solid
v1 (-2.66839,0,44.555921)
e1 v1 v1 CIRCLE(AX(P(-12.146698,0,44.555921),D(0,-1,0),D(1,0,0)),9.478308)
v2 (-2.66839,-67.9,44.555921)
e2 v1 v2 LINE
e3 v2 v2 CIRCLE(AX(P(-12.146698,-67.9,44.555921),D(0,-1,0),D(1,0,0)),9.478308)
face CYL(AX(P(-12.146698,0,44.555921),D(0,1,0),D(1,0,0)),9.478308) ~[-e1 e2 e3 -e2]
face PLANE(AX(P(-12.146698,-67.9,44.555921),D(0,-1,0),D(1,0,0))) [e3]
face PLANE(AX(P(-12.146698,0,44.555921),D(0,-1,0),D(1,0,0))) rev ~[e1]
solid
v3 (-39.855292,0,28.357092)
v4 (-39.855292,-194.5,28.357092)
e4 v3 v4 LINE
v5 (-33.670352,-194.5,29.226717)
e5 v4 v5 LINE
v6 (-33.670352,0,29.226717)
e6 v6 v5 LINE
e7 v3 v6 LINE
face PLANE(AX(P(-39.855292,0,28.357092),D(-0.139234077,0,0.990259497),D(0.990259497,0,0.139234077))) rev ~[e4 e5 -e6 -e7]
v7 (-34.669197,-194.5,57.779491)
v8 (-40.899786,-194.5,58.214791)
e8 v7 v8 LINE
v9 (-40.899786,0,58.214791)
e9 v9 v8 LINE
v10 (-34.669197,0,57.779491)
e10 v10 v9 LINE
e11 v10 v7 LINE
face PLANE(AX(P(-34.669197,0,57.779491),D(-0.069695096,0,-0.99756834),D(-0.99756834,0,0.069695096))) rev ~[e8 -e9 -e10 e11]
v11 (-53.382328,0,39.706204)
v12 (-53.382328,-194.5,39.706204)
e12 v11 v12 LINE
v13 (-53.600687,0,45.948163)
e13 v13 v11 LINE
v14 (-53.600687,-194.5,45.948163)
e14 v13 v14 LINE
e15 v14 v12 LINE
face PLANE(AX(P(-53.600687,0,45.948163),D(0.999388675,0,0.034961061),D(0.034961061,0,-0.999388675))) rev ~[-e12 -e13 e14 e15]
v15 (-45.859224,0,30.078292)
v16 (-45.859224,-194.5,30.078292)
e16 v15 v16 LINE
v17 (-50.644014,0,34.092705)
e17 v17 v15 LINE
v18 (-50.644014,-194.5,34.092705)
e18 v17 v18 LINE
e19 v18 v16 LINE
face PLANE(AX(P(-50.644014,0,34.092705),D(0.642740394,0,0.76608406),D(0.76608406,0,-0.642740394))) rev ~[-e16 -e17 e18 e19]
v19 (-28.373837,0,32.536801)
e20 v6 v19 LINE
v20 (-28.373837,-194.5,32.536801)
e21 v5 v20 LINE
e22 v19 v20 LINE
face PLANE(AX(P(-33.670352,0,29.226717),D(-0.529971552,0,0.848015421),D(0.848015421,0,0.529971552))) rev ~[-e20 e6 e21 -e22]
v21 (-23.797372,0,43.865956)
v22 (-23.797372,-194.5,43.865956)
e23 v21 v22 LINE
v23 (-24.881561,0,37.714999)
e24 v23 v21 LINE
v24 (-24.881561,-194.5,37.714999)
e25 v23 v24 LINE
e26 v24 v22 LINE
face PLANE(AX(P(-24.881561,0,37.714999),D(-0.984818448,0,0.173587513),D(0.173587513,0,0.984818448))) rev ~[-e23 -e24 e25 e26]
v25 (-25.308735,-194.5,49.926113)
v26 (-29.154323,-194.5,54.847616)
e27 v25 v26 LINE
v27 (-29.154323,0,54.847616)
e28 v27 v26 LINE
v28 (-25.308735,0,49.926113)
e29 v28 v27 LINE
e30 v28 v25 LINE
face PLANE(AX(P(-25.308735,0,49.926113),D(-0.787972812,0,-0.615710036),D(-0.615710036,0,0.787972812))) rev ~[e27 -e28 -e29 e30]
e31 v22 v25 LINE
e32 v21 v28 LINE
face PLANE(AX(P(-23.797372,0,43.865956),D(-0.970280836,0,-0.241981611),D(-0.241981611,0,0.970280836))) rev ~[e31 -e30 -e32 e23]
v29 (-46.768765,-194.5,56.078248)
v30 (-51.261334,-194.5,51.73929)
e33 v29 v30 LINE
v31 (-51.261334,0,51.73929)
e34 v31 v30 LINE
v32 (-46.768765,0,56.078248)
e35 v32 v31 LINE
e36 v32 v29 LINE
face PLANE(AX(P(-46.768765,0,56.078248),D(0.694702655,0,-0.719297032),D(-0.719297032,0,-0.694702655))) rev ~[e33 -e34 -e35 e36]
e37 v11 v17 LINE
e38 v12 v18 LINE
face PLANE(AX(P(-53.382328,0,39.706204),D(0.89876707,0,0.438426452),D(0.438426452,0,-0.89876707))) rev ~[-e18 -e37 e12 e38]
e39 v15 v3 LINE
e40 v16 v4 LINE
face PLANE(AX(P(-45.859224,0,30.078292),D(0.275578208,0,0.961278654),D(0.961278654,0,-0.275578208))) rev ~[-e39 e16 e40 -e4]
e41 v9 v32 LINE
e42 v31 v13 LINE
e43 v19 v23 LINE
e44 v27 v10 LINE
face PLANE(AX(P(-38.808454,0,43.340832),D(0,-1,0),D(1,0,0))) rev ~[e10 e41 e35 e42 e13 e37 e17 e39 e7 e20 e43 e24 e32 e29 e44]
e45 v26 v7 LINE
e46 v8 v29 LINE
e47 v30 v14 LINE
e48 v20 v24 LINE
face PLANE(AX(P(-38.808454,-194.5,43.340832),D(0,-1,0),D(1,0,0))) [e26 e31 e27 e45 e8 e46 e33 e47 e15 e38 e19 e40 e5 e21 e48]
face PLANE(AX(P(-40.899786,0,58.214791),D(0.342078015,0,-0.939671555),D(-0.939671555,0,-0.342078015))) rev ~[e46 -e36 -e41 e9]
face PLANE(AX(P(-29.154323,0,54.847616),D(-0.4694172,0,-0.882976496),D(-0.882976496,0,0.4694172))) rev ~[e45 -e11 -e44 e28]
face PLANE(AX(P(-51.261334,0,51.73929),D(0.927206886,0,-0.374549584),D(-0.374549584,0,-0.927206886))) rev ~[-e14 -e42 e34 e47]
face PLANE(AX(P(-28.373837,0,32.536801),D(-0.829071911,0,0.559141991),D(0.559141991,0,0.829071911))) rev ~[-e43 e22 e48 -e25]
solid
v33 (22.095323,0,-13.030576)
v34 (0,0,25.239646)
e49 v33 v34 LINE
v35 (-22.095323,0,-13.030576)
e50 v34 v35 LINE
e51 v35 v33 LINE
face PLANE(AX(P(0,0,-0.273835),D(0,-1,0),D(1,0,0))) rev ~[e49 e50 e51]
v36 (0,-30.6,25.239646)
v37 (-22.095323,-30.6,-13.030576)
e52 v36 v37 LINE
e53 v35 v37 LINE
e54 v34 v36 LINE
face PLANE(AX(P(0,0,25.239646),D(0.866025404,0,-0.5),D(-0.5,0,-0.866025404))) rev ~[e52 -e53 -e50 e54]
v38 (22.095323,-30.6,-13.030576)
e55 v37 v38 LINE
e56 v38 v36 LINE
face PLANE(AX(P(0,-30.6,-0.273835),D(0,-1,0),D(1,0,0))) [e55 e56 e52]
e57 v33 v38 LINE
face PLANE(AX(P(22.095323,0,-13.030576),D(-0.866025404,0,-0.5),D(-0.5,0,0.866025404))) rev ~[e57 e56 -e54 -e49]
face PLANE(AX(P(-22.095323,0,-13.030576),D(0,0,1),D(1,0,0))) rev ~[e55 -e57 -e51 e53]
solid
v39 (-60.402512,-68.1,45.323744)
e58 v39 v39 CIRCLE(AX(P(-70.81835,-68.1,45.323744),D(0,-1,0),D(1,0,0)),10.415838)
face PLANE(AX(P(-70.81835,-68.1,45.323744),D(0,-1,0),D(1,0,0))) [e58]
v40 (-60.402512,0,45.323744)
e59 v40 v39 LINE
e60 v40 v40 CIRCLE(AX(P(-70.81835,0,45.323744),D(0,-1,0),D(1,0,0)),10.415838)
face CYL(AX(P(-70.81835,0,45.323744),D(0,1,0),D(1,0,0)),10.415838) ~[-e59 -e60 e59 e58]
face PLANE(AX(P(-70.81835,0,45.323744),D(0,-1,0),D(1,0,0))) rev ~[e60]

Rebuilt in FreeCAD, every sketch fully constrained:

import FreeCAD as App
import Part
import Sketcher
from FreeCAD import Vector
Q = App.Units.Quantity

doc = App.newDocument("Part")
params = doc.addObject("Spreadsheet::Sheet", "Params")
for row, (alias, value) in enumerate([
    ("pad1_length", "30.6 mm"),
    ("pad2_length", "194.5 mm"),
    ("pad3_length", "68.1 mm"),
    ("pad4_length", "67.9 mm"),
], start=1):
    params.set(f"A{row}", alias)
    params.set(f"B{row}", "=" + value)
    params.setAlias(f"B{row}", alias)

body = doc.addObject("PartDesign::Body", "Body")

# Sketch on XZ plane
sketch1 = body.newObject("Sketcher::SketchObject", "Sketch")
sketch1.AttachmentSupport = (doc.getObject("XZ_Plane"), [""])
sketch1.MapMode = "FlatFace"
sketch1.addGeometry(Part.LineSegment(Vector(0, 25.239646, 0), Vector(-22.095323, -13.030576, 0)), False)
sketch1.addGeometry(Part.LineSegment(Vector(-22.095323, -13.030576, 0), Vector(22.095323, -13.030576, 0)), False)
sketch1.addGeometry(Part.LineSegment(Vector(22.095323, -13.030576, 0), Vector(0, 25.239646, 0)), False)
sketch1.addConstraint(Sketcher.Constraint("Coincident", 0, 2, 1, 1))
sketch1.addConstraint(Sketcher.Constraint("Coincident", 1, 2, 2, 1))
sketch1.addConstraint(Sketcher.Constraint("Coincident", 2, 2, 0, 1))
sketch1.addConstraint(Sketcher.Constraint("Horizontal", 1))
sketch1.addConstraint(Sketcher.Constraint("PointOnObject", 2, 2, -2))
sketch1.addConstraint(Sketcher.Constraint("Equal", 0, 2))
sketch1.addConstraint(Sketcher.Constraint("Angle", 0, Q("-120 deg")))
sketch1.addConstraint(Sketcher.Constraint("DistanceX", 1, 1, 1, 2, Q("44.190646 mm")))
sketch1.addConstraint(Sketcher.Constraint("DistanceY", 0, 2, -1, 1, Q("13.030576 mm")))
pad1 = body.newObject("PartDesign::Pad", "Pad")
pad1.Profile = sketch1
pad1.setExpression("Length", "Params.pad1_length")
body2 = doc.addObject("PartDesign::Body", "Body001")

# Sketch on XZ plane
sketch2 = body2.newObject("Sketcher::SketchObject", "Sketch001")
sketch2.AttachmentSupport = (doc.getObject("XZ_Plane001"), [""])
sketch2.MapMode = "FlatFace"
sketch2.addGeometry(Part.LineSegment(Vector(-28.373837, 32.536801, 0), Vector(-24.881561, 37.714999, 0)), False)
sketch2.addGeometry(Part.LineSegment(Vector(-24.881561, 37.714999, 0), Vector(-23.797372, 43.865956, 0)), False)
sketch2.addGeometry(Part.LineSegment(Vector(-23.797372, 43.865956, 0), Vector(-25.308735, 49.926113, 0)), False)
sketch2.addGeometry(Part.LineSegment(Vector(-25.308735, 49.926113, 0), Vector(-29.154323, 54.847616, 0)), False)
sketch2.addGeometry(Part.LineSegment(Vector(-29.154323, 54.847616, 0), Vector(-34.669197, 57.779491, 0)), False)
sketch2.addGeometry(Part.LineSegment(Vector(-34.669197, 57.779491, 0), Vector(-40.899786, 58.214791, 0)), False)
sketch2.addGeometry(Part.LineSegment(Vector(-40.899786, 58.214791, 0), Vector(-46.768765, 56.078248, 0)), False)
sketch2.addGeometry(Part.LineSegment(Vector(-46.768765, 56.078248, 0), Vector(-51.261334, 51.73929, 0)), False)
sketch2.addGeometry(Part.LineSegment(Vector(-51.261334, 51.73929, 0), Vector(-53.600687, 45.948163, 0)), False)
sketch2.addGeometry(Part.LineSegment(Vector(-53.600687, 45.948163, 0), Vector(-53.382328, 39.706204, 0)), False)
sketch2.addGeometry(Part.LineSegment(Vector(-53.382328, 39.706204, 0), Vector(-50.644014, 34.092705, 0)), False)
sketch2.addGeometry(Part.LineSegment(Vector(-50.644014, 34.092705, 0), Vector(-45.859224, 30.078292, 0)), False)
sketch2.addGeometry(Part.LineSegment(Vector(-45.859224, 30.078292, 0), Vector(-39.855292, 28.357092, 0)), False)
sketch2.addGeometry(Part.LineSegment(Vector(-39.855292, 28.357092, 0), Vector(-33.670352, 29.226717, 0)), False)
sketch2.addGeometry(Part.LineSegment(Vector(-33.670352, 29.226717, 0), Vector(-28.373837, 32.536801, 0)), False)
sketch2.addConstraint(Sketcher.Constraint("Coincident", 0, 2, 1, 1))
sketch2.addConstraint(Sketcher.Constraint("Coincident", 1, 2, 2, 1))
sketch2.addConstraint(Sketcher.Constraint("Coincident", 2, 2, 3, 1))
sketch2.addConstraint(Sketcher.Constraint("Coincident", 3, 2, 4, 1))
sketch2.addConstraint(Sketcher.Constraint("Coincident", 4, 2, 5, 1))
sketch2.addConstraint(Sketcher.Constraint("Coincident", 5, 2, 6, 1))
sketch2.addConstraint(Sketcher.Constraint("Coincident", 6, 2, 7, 1))
sketch2.addConstraint(Sketcher.Constraint("Coincident", 7, 2, 8, 1))
sketch2.addConstraint(Sketcher.Constraint("Coincident", 8, 2, 9, 1))
sketch2.addConstraint(Sketcher.Constraint("Coincident", 9, 2, 10, 1))
sketch2.addConstraint(Sketcher.Constraint("Coincident", 10, 2, 11, 1))
sketch2.addConstraint(Sketcher.Constraint("Coincident", 11, 2, 12, 1))
sketch2.addConstraint(Sketcher.Constraint("Coincident", 12, 2, 13, 1))
sketch2.addConstraint(Sketcher.Constraint("Coincident", 13, 2, 14, 1))
sketch2.addConstraint(Sketcher.Constraint("Coincident", 14, 2, 0, 1))
sketch2.addConstraint(Sketcher.Constraint("Equal", 0, 1))
sketch2.addConstraint(Sketcher.Constraint("Equal", 1, 2))
sketch2.addConstraint(Sketcher.Constraint("Equal", 2, 3))
sketch2.addConstraint(Sketcher.Constraint("Equal", 3, 4))
sketch2.addConstraint(Sketcher.Constraint("Equal", 4, 5))
sketch2.addConstraint(Sketcher.Constraint("Equal", 5, 6))
sketch2.addConstraint(Sketcher.Constraint("Equal", 6, 7))
sketch2.addConstraint(Sketcher.Constraint("Equal", 7, 8))
sketch2.addConstraint(Sketcher.Constraint("Equal", 8, 9))
sketch2.addConstraint(Sketcher.Constraint("Equal", 9, 10))
sketch2.addConstraint(Sketcher.Constraint("Equal", 10, 11))
sketch2.addConstraint(Sketcher.Constraint("Equal", 11, 12))
sketch2.addConstraint(Sketcher.Constraint("Equal", 12, 13))
sketch2.addConstraint(Sketcher.Constraint("Equal", 13, 14))
sketch2.addConstraint(Sketcher.Constraint("DistanceY", -1, 1, 0, 2, Q("37.714999 mm")))
sketch2.addConstraint(Sketcher.Constraint("DistanceY", -1, 1, 14, 2, Q("32.536801 mm")))
sketch2.addConstraint(Sketcher.Constraint("DistanceY", 4, 2, 5, 2, Q("0.4353 mm")))
sketch2.addConstraint(Sketcher.Constraint("DistanceY", 7, 2, 5, 2, Q("6.475501 mm")))
sketch2.addConstraint(Sketcher.Constraint("DistanceX", 7, 2, 2, 2, Q("25.952599 mm")))
sketch2.addConstraint(Sketcher.Constraint("DistanceX", 8, 2, 5, 2, Q("12.700901 mm")))
sketch2.addConstraint(Sketcher.Constraint("DistanceY", 10, 2, 9, 2, Q("5.613499 mm")))
sketch2.addConstraint(Sketcher.Constraint("DistanceY", 12, 2, 11, 2, Q("1.7212 mm")))
sketch2.addConstraint(Sketcher.Constraint("DistanceX", 0, 2, -1, 1, Q("24.881561 mm")))
sketch2.addConstraint(Sketcher.Constraint("DistanceX", 1, 2, -1, 1, Q("23.797372 mm")))
sketch2.addConstraint(Sketcher.Constraint("DistanceY", -1, 1, 4, 2, Q("57.779491 mm")))
sketch2.addConstraint(Sketcher.Constraint("DistanceY", -1, 1, 6, 2, Q("56.078248 mm")))
sketch2.addConstraint(Sketcher.Constraint("DistanceX", 3, 2, 2, 2, Q("3.845588 mm")))
sketch2.addConstraint(Sketcher.Constraint("DistanceX", 3, 2, 1, 2, Q("5.356951 mm")))
sketch2.addConstraint(Sketcher.Constraint("DistanceX", 8, 2, 9, 2, Q("0.218359 mm")))
sketch2.addConstraint(Sketcher.Constraint("DistanceX", 10, 2, 11, 2, Q("4.78479 mm")))
pad2 = body2.newObject("PartDesign::Pad", "Pad001")
pad2.Profile = sketch2
pad2.setExpression("Length", "Params.pad2_length")
body3 = doc.addObject("PartDesign::Body", "Body002")

# Sketch on XZ plane
sketch3 = body3.newObject("Sketcher::SketchObject", "Sketch002")
sketch3.AttachmentSupport = (doc.getObject("XZ_Plane002"), [""])
sketch3.MapMode = "FlatFace"
sketch3.addGeometry(Part.Circle(Vector(-70.81835, 45.323744, 0), Vector(0, 0, 1), 10.415838), False)
sketch3.addConstraint(Sketcher.Constraint("Diameter", 0, Q("20.831676 mm")))
sketch3.addConstraint(Sketcher.Constraint("DistanceX", 0, 3, -1, 1, Q("70.81835 mm")))
sketch3.addConstraint(Sketcher.Constraint("DistanceY", -1, 1, 0, 3, Q("45.323744 mm")))
pad3 = body3.newObject("PartDesign::Pad", "Pad002")
pad3.Profile = sketch3
pad3.setExpression("Length", "Params.pad3_length")
body4 = doc.addObject("PartDesign::Body", "Body003")

# Sketch on XZ plane
sketch4 = body4.newObject("Sketcher::SketchObject", "Sketch003")
sketch4.AttachmentSupport = (doc.getObject("XZ_Plane003"), [""])
sketch4.MapMode = "FlatFace"
sketch4.addGeometry(Part.Circle(Vector(-12.146698, 44.555921, 0), Vector(0, 0, 1), 9.478308), False)
sketch4.addConstraint(Sketcher.Constraint("Diameter", 0, Q("18.956616 mm")))
sketch4.addConstraint(Sketcher.Constraint("DistanceX", 0, 3, -1, 1, Q("12.146698 mm")))
sketch4.addConstraint(Sketcher.Constraint("DistanceY", -1, 1, 0, 3, Q("44.555921 mm")))
pad4 = body4.newObject("PartDesign::Pad", "Pad003")
pad4.Profile = sketch4
pad4.setExpression("Length", "Params.pad4_length")

doc.recompute()
